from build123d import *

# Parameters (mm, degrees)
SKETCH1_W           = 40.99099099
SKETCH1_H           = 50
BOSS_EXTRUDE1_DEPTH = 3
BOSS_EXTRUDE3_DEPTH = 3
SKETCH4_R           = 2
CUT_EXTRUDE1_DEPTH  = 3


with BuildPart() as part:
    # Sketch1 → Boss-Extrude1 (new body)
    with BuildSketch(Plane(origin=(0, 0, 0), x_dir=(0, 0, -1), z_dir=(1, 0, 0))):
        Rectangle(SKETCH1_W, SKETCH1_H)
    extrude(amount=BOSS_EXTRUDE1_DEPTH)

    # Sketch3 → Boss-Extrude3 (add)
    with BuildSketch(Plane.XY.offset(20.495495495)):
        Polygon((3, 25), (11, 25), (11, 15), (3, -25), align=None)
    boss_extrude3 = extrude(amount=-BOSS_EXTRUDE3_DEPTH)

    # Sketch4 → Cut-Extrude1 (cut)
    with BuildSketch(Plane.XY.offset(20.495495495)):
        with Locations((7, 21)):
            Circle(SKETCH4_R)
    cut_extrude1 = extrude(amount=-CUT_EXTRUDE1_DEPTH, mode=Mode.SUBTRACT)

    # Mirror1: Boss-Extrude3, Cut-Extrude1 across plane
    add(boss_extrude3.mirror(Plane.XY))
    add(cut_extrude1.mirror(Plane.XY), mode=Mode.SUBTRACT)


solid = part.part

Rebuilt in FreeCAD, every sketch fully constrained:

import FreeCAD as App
import Part
import Sketcher

V = App.Vector

doc = App.newDocument("Part")
body = doc.addObject("PartDesign::Body", "Body")

# Sketch on YZ plane
sketch1 = doc.addObject("Sketcher::SketchObject", "Sketch")
body.addObject(sketch1)
sketch1.AttachmentSupport = (doc.YZ_Plane, [""])
sketch1.MapMode = "FlatFace"
sketch1.addGeometry(Part.LineSegment(V(25, 20.495495, 0), V(-25, 20.495495, 0)), False)
sketch1.addGeometry(Part.LineSegment(V(-25, 20.495495, 0), V(-25, -20.495495, 0)), False)
sketch1.addGeometry(Part.LineSegment(V(-25, -20.495495, 0), V(25, -20.495495, 0)), False)
sketch1.addGeometry(Part.LineSegment(V(25, -20.495495, 0), V(25, 20.495495, 0)), False)
sketch1.addConstraint(Sketcher.Constraint("Coincident", 0, 2, 1, 1))
sketch1.addConstraint(Sketcher.Constraint("Coincident", 1, 2, 2, 1))
sketch1.addConstraint(Sketcher.Constraint("Coincident", 2, 2, 3, 1))
sketch1.addConstraint(Sketcher.Constraint("Coincident", 3, 2, 0, 1))
sketch1.addConstraint(Sketcher.Constraint("Horizontal", 0))
sketch1.addConstraint(Sketcher.Constraint("Vertical", 1))
sketch1.addConstraint(Sketcher.Constraint("Horizontal", 2))
sketch1.addConstraint(Sketcher.Constraint("Vertical", 3))
sketch1.addConstraint(Sketcher.Constraint("Symmetric", 0, 2, 2, 2, -1, 1))
sketch1.addConstraint(Sketcher.Constraint("DistanceX", 0, 2, 0, 1, 50.0))
sketch1.addConstraint(Sketcher.Constraint("DistanceY", 1, 2, 1, 1, 40.990991))
pad1 = doc.addObject("PartDesign::Pad", "Pad")
body.addObject(pad1)
pad1.Profile = sketch1
pad1.Length = 3

# Sketch on XY plane
sketch2 = doc.addObject("Sketcher::SketchObject", "Sketch001")
body.addObject(sketch2)
sketch2.AttachmentSupport = (doc.XY_Plane, [""])
sketch2.MapMode = "FlatFace"
sketch2.AttachmentOffset = App.Placement(V(0, 0, 20.495495), App.Rotation())
sketch2.addGeometry(Part.LineSegment(V(11, 25, 0), V(3, 25, 0)), False)
sketch2.addGeometry(Part.LineSegment(V(3, 25, 0), V(3, -25, 0)), False)
sketch2.addGeometry(Part.LineSegment(V(3, -25, 0), V(11, 15, 0)), False)
sketch2.addGeometry(Part.LineSegment(V(11, 15, 0), V(11, 25, 0)), False)
sketch2.addConstraint(Sketcher.Constraint("Coincident", 0, 2, 1, 1))
sketch2.addConstraint(Sketcher.Constraint("Coincident", 1, 2, 2, 1))
sketch2.addConstraint(Sketcher.Constraint("Coincident", 2, 2, 3, 1))
sketch2.addConstraint(Sketcher.Constraint("Coincident", 3, 2, 0, 1))
sketch2.addConstraint(Sketcher.Constraint("Horizontal", 0))
sketch2.addConstraint(Sketcher.Constraint("Vertical", 1))
sketch2.addConstraint(Sketcher.Constraint("Vertical", 3))
sketch2.addConstraint(Sketcher.Constraint("DistanceX", 0, 2, 0, 1, 8.0))
sketch2.addConstraint(Sketcher.Constraint("DistanceY", 1, 2, 1, 1, 50.0))
sketch2.addConstraint(Sketcher.Constraint("DistanceY", 3, 1, 3, 2, 10.0))
sketch2.addConstraint(Sketcher.Constraint("DistanceX", -1, 1, 0, 2, 3.0))
sketch2.addConstraint(Sketcher.Constraint("DistanceY", -1, 1, 0, 2, 25.0))
pad2 = doc.addObject("PartDesign::Pad", "Pad001")
body.addObject(pad2)
pad2.Profile = sketch2
pad2.Length = 3
pad2.Reversed = True

# Sketch on XY plane
sketch3 = doc.addObject("Sketcher::SketchObject", "Sketch002")
body.addObject(sketch3)
sketch3.AttachmentSupport = (doc.XY_Plane, [""])
sketch3.MapMode = "FlatFace"
sketch3.AttachmentOffset = App.Placement(V(0, 0, 20.495495), App.Rotation())
sketch3.addGeometry(Part.Circle(V(7, 21, 0), V(0, 0, 1), 2), False)
sketch3.addConstraint(Sketcher.Constraint("Diameter", 0, 4.0))
sketch3.addConstraint(Sketcher.Constraint("DistanceX", -1, 1, 0, 3, 7.0))
sketch3.addConstraint(Sketcher.Constraint("DistanceY", -1, 1, 0, 3, 21.0))
pocket1 = doc.addObject("PartDesign::Pocket", "Pocket")
body.addObject(pocket1)
pocket1.Profile = sketch3
pocket1.Length = 3
doc.recompute()

mirrored = doc.addObject("PartDesign::Mirrored", "Mirrored")
body.addObject(mirrored)
mirrored.Originals = [pad2, pocket1]
mirrored.MirrorPlane = (doc.XY_Plane, [""])
body.Tip = mirrored

doc.recompute()
